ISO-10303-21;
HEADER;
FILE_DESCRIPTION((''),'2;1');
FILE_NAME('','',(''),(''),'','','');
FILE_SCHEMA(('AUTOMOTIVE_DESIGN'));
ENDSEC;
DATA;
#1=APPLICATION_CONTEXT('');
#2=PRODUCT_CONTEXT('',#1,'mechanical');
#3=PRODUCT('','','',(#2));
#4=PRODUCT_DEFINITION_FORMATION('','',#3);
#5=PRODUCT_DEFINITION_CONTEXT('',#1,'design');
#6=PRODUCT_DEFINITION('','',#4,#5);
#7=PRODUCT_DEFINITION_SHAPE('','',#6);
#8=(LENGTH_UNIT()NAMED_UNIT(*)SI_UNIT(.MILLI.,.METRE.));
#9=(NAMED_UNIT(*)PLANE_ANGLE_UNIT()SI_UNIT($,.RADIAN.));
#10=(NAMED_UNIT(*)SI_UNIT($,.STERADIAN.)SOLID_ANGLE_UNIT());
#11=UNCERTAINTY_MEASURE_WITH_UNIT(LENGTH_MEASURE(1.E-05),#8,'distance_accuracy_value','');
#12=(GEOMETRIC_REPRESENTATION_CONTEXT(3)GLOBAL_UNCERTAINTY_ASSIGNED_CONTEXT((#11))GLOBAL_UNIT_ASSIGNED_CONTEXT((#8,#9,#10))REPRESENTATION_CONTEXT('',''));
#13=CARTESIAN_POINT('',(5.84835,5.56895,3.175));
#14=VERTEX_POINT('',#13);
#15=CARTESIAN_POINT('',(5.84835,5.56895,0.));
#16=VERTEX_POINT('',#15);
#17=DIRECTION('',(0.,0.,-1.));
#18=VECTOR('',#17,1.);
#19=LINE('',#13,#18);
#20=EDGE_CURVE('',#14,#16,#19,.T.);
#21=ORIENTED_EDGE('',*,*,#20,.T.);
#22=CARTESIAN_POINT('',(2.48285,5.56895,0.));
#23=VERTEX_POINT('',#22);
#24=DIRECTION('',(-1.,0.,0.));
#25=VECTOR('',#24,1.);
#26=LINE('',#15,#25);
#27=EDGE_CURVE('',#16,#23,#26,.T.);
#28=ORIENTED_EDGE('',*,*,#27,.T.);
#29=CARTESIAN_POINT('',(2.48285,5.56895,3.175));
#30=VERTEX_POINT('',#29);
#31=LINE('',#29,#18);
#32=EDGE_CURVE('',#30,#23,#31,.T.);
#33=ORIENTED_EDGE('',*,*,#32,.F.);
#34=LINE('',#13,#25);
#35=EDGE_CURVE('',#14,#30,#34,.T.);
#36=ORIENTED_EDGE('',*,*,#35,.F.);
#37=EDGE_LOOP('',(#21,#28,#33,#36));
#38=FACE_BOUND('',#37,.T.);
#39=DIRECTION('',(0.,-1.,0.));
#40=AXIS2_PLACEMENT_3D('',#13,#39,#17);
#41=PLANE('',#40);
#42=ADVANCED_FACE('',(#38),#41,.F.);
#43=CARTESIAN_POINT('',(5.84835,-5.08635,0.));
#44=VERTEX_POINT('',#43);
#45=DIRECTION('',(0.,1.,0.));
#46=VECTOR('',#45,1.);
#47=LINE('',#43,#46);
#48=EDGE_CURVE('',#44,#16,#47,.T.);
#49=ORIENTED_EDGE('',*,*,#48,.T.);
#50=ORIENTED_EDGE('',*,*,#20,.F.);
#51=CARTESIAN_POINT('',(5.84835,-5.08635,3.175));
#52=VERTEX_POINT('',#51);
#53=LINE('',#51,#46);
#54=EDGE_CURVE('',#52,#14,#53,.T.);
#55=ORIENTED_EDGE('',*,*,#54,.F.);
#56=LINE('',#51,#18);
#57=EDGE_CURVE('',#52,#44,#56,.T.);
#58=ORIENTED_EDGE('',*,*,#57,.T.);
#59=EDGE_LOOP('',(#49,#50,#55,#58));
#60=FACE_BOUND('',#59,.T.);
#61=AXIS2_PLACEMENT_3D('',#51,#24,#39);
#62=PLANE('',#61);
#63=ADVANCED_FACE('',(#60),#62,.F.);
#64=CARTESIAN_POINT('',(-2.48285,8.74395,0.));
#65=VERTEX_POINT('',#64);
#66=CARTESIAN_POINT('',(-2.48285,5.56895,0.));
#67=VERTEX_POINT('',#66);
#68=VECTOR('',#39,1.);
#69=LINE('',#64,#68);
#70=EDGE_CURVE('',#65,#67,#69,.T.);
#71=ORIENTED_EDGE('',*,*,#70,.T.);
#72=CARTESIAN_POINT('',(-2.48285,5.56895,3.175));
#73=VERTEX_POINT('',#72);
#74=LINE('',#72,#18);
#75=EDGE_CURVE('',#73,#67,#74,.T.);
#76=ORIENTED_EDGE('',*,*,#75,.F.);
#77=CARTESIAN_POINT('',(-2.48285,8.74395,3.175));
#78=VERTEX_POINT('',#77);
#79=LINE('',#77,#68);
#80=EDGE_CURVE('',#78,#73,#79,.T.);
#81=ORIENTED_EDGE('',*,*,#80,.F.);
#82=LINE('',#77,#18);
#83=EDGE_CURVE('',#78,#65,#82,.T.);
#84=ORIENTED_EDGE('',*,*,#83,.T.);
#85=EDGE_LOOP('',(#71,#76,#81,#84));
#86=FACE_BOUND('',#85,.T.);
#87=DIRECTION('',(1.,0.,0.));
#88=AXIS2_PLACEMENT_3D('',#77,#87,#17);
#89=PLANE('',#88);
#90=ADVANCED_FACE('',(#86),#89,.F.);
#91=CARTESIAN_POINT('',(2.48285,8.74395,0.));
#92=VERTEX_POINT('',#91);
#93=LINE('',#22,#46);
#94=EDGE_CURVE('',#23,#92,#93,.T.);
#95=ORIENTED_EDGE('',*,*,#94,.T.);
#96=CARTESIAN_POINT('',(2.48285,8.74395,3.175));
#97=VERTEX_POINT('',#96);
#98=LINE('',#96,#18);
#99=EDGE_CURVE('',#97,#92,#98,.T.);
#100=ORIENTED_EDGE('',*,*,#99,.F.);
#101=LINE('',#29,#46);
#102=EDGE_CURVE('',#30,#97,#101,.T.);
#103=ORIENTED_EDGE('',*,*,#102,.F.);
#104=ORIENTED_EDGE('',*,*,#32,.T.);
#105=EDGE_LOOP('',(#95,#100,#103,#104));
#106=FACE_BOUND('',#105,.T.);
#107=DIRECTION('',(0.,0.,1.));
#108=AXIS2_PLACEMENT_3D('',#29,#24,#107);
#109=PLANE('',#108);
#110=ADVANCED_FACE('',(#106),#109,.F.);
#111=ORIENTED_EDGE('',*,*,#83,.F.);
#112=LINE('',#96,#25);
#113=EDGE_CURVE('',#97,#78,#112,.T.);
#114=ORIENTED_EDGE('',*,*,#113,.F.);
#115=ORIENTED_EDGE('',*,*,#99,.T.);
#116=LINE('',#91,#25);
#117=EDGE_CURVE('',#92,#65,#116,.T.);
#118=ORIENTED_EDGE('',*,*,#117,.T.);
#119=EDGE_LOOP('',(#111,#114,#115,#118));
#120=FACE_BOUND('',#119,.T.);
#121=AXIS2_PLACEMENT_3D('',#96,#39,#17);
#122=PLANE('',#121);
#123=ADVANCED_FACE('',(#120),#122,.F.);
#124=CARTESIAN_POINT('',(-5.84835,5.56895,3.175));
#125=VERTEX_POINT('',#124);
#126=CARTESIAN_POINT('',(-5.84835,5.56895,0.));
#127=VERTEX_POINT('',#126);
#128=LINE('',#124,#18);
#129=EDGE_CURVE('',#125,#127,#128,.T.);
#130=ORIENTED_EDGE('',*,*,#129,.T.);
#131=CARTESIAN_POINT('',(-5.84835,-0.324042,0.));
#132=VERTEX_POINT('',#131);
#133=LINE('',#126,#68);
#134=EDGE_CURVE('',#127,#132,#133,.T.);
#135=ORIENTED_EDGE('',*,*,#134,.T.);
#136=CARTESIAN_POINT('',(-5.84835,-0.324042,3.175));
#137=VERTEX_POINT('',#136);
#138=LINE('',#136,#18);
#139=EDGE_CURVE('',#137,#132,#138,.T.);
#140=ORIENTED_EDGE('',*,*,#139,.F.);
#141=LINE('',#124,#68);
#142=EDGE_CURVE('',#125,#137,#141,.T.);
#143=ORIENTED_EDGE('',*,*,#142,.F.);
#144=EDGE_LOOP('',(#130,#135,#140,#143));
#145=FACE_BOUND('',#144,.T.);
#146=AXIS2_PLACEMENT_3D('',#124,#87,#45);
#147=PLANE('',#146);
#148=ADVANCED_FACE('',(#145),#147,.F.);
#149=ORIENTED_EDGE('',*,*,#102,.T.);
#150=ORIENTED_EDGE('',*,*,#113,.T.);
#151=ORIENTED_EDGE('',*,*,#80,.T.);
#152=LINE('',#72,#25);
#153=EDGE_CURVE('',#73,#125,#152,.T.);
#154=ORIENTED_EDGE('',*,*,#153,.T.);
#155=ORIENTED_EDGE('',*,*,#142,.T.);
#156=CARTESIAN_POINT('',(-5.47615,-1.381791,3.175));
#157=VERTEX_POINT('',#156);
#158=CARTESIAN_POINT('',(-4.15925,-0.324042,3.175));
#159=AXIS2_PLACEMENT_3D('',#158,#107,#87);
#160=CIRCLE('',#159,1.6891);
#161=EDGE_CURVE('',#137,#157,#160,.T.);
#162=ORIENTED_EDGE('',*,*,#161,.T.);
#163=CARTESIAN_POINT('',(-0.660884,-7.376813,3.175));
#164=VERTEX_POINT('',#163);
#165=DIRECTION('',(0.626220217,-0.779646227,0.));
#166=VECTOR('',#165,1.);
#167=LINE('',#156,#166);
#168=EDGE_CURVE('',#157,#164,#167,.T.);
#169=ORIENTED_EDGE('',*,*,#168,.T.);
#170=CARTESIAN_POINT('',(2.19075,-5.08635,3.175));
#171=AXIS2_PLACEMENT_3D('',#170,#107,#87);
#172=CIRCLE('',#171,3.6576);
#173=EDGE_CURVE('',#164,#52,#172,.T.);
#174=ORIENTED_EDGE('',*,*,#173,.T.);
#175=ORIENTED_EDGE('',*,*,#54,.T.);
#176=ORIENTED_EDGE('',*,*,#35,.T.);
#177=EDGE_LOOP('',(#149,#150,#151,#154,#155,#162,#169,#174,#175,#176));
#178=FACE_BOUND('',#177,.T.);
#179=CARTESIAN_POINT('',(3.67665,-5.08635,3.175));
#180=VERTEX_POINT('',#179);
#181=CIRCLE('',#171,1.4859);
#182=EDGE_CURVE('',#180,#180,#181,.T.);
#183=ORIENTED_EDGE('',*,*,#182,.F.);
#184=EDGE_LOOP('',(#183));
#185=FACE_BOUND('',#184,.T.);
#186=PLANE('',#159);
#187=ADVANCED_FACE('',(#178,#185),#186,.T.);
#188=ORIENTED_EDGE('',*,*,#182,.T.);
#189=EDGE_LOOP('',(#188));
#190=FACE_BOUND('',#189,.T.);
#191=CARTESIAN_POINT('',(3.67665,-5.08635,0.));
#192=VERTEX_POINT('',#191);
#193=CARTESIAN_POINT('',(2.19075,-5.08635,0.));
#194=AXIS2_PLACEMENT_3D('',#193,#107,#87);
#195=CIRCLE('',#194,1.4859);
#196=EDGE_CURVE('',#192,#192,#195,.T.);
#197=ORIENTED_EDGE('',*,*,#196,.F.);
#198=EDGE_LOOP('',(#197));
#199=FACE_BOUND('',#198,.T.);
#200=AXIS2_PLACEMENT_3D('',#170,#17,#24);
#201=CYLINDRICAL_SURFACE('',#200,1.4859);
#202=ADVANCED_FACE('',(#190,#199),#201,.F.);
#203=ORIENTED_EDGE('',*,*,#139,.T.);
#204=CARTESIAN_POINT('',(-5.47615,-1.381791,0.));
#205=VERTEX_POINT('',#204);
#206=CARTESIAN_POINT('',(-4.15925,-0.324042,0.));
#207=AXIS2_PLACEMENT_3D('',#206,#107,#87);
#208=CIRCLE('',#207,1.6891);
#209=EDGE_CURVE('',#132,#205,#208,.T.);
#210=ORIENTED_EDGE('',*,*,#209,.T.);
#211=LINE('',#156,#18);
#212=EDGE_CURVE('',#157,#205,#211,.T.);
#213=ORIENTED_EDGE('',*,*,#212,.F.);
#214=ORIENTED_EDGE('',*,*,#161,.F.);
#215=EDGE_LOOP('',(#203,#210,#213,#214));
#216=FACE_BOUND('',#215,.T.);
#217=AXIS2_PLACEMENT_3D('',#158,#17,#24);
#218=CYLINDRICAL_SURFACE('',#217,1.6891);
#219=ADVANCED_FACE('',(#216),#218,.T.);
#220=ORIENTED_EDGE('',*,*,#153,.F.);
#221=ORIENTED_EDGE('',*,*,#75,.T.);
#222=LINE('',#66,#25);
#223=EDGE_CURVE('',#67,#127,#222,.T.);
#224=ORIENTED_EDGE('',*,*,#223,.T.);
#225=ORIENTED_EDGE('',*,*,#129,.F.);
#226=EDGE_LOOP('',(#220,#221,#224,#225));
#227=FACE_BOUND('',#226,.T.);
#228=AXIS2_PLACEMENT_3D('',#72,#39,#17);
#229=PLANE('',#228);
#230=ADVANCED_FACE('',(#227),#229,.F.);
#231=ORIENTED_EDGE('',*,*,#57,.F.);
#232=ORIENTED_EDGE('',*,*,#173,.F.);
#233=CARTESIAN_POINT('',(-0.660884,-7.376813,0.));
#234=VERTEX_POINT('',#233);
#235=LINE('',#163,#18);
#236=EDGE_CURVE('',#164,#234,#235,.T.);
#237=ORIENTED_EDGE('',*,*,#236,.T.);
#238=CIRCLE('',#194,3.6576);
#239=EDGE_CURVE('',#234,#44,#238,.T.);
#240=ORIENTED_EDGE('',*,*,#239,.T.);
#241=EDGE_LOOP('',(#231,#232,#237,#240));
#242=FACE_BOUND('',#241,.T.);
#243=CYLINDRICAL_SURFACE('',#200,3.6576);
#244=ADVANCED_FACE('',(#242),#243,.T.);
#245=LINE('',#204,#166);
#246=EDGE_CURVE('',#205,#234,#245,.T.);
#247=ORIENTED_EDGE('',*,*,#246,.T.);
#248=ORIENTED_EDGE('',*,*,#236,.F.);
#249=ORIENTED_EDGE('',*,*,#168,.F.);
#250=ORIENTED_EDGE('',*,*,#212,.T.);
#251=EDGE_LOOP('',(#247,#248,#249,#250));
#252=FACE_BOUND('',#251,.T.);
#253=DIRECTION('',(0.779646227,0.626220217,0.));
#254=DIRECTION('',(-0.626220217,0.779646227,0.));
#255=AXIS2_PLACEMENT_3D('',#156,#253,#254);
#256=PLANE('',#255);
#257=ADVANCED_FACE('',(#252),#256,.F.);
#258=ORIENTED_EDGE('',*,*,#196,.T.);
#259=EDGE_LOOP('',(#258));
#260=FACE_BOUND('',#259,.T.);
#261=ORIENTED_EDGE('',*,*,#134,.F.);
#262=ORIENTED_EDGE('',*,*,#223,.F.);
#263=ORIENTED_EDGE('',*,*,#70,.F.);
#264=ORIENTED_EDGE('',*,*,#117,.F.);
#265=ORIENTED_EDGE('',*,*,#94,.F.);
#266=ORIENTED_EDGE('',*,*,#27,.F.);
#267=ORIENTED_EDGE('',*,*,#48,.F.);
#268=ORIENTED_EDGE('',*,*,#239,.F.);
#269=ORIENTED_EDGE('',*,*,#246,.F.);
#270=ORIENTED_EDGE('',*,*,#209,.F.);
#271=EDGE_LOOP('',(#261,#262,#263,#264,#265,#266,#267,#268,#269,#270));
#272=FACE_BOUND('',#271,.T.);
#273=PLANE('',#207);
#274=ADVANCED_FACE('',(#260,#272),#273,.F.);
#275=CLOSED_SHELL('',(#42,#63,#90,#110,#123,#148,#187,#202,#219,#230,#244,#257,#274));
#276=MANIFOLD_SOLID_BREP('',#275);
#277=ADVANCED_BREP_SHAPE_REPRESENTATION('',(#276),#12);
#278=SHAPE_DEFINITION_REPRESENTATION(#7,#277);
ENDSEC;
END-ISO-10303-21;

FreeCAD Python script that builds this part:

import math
import FreeCAD as App
import Part
import Sketcher
Q = App.Units.Quantity

doc = App.newDocument("Part")
body = doc.addObject("PartDesign::Body", "Body")

# Sketch on XY plane
sketch1 = body.newObject("Sketcher::SketchObject", "Sketch")
sketch1.AttachmentSupport = (doc.getObject("XY_Plane"), [""])
sketch1.MapMode = "FlatFace"
sketch1.addGeometry([
    Part.LineSegment(App.Vector(-5.5, -1.4, 0), App.Vector(-0.7, -7.4, 0)),  # 0
    Part.ArcOfCircle(Part.Circle(App.Vector(2.2, -5.1, 0), App.Vector(0, 0, 1), 3.7), math.radians(-141), math.radians(0)),  # 1
    Part.LineSegment(App.Vector(5.8, -5.1, 0), App.Vector(5.8, 5.6, 0)),  # 2
    Part.LineSegment(App.Vector(5.8, 5.6, 0), App.Vector(2.5, 5.6, 0)),  # 3
    Part.LineSegment(App.Vector(2.5, 5.6, 0), App.Vector(2.5, 8.7, 0)),  # 4
    Part.LineSegment(App.Vector(2.5, 8.7, 0), App.Vector(-2.5, 8.7, 0)),  # 5
    Part.LineSegment(App.Vector(-2.5, 8.7, 0), App.Vector(-2.5, 5.6, 0)),  # 6
    Part.LineSegment(App.Vector(-2.5, 5.6, 0), App.Vector(-5.8, 5.6, 0)),  # 7
    Part.LineSegment(App.Vector(-5.8, 5.6, 0), App.Vector(-5.8, -0.3, 0)),  # 8
    Part.ArcOfCircle(Part.Circle(App.Vector(-4.2, -0.3, 0), App.Vector(0, 0, 1), 1.7), math.radians(180), math.radians(219)),  # 9
    Part.Circle(App.Vector(2.2, -5.1, 0), App.Vector(0, 0, 1), 1.5),  # 10
], False)
sketch1.addConstraint([
    Sketcher.Constraint("Tangent", 0, 2, 1, 1),
    Sketcher.Constraint("Tangent", 1, 2, 2, 1),
    Sketcher.Constraint("Coincident", 2, 2, 3, 1),
    Sketcher.Constraint("Coincident", 3, 2, 4, 1),
    Sketcher.Constraint("Coincident", 4, 2, 5, 1),
    Sketcher.Constraint("Coincident", 5, 2, 6, 1),
    Sketcher.Constraint("Coincident", 6, 2, 7, 1),
    Sketcher.Constraint("Coincident", 7, 2, 8, 1),
    Sketcher.Constraint("Tangent", 8, 2, 9, 1),
    Sketcher.Constraint("Tangent", 9, 2, 0, 1),
    Sketcher.Constraint("Vertical", 2),
    Sketcher.Constraint("Horizontal", 3),
    Sketcher.Constraint("Vertical", 4),
    Sketcher.Constraint("Horizontal", 5),
    Sketcher.Constraint("Vertical", 6),
    Sketcher.Constraint("Horizontal", 7),
    Sketcher.Constraint("Vertical", 8),
    Sketcher.Constraint("Coincident", 10, 3, 1, 3),
    Sketcher.Constraint("Symmetric", 3, 2, 6, 2, -2),
    Sketcher.Constraint("Equal", 3, 7),
    Sketcher.Constraint("Diameter", 10, Q("0.117 in")),
    Sketcher.Constraint("Radius", 1, Q("0.144 in")),
    Sketcher.Constraint("Radius", 9, Q("0.0665 in")),
    Sketcher.Constraint("DistanceY", 4, 1, 4, 2, Q("0.125 in")),
    Sketcher.Constraint("DistanceX", 9, 3, 1, 3, Q("0.25 in")),
    Sketcher.Constraint("DistanceX", 3, 2, 3, 1, Q("0.1325 in")),
    Sketcher.Constraint("DistanceY", 2, 1, 2, 2, Q("0.4195 in")),
    Sketcher.Constraint("DistanceX", 8, 2, 9, 2, Q("0.3722 mm")),
    Sketcher.Constraint("DistanceY", 1, 3, -1, 1, Q("5.08635 mm")),
])
pad1 = body.newObject("PartDesign::Pad", "Pad")
pad1.Profile = sketch1
pad1.Length = Q("0.125 in")

doc.recompute()
